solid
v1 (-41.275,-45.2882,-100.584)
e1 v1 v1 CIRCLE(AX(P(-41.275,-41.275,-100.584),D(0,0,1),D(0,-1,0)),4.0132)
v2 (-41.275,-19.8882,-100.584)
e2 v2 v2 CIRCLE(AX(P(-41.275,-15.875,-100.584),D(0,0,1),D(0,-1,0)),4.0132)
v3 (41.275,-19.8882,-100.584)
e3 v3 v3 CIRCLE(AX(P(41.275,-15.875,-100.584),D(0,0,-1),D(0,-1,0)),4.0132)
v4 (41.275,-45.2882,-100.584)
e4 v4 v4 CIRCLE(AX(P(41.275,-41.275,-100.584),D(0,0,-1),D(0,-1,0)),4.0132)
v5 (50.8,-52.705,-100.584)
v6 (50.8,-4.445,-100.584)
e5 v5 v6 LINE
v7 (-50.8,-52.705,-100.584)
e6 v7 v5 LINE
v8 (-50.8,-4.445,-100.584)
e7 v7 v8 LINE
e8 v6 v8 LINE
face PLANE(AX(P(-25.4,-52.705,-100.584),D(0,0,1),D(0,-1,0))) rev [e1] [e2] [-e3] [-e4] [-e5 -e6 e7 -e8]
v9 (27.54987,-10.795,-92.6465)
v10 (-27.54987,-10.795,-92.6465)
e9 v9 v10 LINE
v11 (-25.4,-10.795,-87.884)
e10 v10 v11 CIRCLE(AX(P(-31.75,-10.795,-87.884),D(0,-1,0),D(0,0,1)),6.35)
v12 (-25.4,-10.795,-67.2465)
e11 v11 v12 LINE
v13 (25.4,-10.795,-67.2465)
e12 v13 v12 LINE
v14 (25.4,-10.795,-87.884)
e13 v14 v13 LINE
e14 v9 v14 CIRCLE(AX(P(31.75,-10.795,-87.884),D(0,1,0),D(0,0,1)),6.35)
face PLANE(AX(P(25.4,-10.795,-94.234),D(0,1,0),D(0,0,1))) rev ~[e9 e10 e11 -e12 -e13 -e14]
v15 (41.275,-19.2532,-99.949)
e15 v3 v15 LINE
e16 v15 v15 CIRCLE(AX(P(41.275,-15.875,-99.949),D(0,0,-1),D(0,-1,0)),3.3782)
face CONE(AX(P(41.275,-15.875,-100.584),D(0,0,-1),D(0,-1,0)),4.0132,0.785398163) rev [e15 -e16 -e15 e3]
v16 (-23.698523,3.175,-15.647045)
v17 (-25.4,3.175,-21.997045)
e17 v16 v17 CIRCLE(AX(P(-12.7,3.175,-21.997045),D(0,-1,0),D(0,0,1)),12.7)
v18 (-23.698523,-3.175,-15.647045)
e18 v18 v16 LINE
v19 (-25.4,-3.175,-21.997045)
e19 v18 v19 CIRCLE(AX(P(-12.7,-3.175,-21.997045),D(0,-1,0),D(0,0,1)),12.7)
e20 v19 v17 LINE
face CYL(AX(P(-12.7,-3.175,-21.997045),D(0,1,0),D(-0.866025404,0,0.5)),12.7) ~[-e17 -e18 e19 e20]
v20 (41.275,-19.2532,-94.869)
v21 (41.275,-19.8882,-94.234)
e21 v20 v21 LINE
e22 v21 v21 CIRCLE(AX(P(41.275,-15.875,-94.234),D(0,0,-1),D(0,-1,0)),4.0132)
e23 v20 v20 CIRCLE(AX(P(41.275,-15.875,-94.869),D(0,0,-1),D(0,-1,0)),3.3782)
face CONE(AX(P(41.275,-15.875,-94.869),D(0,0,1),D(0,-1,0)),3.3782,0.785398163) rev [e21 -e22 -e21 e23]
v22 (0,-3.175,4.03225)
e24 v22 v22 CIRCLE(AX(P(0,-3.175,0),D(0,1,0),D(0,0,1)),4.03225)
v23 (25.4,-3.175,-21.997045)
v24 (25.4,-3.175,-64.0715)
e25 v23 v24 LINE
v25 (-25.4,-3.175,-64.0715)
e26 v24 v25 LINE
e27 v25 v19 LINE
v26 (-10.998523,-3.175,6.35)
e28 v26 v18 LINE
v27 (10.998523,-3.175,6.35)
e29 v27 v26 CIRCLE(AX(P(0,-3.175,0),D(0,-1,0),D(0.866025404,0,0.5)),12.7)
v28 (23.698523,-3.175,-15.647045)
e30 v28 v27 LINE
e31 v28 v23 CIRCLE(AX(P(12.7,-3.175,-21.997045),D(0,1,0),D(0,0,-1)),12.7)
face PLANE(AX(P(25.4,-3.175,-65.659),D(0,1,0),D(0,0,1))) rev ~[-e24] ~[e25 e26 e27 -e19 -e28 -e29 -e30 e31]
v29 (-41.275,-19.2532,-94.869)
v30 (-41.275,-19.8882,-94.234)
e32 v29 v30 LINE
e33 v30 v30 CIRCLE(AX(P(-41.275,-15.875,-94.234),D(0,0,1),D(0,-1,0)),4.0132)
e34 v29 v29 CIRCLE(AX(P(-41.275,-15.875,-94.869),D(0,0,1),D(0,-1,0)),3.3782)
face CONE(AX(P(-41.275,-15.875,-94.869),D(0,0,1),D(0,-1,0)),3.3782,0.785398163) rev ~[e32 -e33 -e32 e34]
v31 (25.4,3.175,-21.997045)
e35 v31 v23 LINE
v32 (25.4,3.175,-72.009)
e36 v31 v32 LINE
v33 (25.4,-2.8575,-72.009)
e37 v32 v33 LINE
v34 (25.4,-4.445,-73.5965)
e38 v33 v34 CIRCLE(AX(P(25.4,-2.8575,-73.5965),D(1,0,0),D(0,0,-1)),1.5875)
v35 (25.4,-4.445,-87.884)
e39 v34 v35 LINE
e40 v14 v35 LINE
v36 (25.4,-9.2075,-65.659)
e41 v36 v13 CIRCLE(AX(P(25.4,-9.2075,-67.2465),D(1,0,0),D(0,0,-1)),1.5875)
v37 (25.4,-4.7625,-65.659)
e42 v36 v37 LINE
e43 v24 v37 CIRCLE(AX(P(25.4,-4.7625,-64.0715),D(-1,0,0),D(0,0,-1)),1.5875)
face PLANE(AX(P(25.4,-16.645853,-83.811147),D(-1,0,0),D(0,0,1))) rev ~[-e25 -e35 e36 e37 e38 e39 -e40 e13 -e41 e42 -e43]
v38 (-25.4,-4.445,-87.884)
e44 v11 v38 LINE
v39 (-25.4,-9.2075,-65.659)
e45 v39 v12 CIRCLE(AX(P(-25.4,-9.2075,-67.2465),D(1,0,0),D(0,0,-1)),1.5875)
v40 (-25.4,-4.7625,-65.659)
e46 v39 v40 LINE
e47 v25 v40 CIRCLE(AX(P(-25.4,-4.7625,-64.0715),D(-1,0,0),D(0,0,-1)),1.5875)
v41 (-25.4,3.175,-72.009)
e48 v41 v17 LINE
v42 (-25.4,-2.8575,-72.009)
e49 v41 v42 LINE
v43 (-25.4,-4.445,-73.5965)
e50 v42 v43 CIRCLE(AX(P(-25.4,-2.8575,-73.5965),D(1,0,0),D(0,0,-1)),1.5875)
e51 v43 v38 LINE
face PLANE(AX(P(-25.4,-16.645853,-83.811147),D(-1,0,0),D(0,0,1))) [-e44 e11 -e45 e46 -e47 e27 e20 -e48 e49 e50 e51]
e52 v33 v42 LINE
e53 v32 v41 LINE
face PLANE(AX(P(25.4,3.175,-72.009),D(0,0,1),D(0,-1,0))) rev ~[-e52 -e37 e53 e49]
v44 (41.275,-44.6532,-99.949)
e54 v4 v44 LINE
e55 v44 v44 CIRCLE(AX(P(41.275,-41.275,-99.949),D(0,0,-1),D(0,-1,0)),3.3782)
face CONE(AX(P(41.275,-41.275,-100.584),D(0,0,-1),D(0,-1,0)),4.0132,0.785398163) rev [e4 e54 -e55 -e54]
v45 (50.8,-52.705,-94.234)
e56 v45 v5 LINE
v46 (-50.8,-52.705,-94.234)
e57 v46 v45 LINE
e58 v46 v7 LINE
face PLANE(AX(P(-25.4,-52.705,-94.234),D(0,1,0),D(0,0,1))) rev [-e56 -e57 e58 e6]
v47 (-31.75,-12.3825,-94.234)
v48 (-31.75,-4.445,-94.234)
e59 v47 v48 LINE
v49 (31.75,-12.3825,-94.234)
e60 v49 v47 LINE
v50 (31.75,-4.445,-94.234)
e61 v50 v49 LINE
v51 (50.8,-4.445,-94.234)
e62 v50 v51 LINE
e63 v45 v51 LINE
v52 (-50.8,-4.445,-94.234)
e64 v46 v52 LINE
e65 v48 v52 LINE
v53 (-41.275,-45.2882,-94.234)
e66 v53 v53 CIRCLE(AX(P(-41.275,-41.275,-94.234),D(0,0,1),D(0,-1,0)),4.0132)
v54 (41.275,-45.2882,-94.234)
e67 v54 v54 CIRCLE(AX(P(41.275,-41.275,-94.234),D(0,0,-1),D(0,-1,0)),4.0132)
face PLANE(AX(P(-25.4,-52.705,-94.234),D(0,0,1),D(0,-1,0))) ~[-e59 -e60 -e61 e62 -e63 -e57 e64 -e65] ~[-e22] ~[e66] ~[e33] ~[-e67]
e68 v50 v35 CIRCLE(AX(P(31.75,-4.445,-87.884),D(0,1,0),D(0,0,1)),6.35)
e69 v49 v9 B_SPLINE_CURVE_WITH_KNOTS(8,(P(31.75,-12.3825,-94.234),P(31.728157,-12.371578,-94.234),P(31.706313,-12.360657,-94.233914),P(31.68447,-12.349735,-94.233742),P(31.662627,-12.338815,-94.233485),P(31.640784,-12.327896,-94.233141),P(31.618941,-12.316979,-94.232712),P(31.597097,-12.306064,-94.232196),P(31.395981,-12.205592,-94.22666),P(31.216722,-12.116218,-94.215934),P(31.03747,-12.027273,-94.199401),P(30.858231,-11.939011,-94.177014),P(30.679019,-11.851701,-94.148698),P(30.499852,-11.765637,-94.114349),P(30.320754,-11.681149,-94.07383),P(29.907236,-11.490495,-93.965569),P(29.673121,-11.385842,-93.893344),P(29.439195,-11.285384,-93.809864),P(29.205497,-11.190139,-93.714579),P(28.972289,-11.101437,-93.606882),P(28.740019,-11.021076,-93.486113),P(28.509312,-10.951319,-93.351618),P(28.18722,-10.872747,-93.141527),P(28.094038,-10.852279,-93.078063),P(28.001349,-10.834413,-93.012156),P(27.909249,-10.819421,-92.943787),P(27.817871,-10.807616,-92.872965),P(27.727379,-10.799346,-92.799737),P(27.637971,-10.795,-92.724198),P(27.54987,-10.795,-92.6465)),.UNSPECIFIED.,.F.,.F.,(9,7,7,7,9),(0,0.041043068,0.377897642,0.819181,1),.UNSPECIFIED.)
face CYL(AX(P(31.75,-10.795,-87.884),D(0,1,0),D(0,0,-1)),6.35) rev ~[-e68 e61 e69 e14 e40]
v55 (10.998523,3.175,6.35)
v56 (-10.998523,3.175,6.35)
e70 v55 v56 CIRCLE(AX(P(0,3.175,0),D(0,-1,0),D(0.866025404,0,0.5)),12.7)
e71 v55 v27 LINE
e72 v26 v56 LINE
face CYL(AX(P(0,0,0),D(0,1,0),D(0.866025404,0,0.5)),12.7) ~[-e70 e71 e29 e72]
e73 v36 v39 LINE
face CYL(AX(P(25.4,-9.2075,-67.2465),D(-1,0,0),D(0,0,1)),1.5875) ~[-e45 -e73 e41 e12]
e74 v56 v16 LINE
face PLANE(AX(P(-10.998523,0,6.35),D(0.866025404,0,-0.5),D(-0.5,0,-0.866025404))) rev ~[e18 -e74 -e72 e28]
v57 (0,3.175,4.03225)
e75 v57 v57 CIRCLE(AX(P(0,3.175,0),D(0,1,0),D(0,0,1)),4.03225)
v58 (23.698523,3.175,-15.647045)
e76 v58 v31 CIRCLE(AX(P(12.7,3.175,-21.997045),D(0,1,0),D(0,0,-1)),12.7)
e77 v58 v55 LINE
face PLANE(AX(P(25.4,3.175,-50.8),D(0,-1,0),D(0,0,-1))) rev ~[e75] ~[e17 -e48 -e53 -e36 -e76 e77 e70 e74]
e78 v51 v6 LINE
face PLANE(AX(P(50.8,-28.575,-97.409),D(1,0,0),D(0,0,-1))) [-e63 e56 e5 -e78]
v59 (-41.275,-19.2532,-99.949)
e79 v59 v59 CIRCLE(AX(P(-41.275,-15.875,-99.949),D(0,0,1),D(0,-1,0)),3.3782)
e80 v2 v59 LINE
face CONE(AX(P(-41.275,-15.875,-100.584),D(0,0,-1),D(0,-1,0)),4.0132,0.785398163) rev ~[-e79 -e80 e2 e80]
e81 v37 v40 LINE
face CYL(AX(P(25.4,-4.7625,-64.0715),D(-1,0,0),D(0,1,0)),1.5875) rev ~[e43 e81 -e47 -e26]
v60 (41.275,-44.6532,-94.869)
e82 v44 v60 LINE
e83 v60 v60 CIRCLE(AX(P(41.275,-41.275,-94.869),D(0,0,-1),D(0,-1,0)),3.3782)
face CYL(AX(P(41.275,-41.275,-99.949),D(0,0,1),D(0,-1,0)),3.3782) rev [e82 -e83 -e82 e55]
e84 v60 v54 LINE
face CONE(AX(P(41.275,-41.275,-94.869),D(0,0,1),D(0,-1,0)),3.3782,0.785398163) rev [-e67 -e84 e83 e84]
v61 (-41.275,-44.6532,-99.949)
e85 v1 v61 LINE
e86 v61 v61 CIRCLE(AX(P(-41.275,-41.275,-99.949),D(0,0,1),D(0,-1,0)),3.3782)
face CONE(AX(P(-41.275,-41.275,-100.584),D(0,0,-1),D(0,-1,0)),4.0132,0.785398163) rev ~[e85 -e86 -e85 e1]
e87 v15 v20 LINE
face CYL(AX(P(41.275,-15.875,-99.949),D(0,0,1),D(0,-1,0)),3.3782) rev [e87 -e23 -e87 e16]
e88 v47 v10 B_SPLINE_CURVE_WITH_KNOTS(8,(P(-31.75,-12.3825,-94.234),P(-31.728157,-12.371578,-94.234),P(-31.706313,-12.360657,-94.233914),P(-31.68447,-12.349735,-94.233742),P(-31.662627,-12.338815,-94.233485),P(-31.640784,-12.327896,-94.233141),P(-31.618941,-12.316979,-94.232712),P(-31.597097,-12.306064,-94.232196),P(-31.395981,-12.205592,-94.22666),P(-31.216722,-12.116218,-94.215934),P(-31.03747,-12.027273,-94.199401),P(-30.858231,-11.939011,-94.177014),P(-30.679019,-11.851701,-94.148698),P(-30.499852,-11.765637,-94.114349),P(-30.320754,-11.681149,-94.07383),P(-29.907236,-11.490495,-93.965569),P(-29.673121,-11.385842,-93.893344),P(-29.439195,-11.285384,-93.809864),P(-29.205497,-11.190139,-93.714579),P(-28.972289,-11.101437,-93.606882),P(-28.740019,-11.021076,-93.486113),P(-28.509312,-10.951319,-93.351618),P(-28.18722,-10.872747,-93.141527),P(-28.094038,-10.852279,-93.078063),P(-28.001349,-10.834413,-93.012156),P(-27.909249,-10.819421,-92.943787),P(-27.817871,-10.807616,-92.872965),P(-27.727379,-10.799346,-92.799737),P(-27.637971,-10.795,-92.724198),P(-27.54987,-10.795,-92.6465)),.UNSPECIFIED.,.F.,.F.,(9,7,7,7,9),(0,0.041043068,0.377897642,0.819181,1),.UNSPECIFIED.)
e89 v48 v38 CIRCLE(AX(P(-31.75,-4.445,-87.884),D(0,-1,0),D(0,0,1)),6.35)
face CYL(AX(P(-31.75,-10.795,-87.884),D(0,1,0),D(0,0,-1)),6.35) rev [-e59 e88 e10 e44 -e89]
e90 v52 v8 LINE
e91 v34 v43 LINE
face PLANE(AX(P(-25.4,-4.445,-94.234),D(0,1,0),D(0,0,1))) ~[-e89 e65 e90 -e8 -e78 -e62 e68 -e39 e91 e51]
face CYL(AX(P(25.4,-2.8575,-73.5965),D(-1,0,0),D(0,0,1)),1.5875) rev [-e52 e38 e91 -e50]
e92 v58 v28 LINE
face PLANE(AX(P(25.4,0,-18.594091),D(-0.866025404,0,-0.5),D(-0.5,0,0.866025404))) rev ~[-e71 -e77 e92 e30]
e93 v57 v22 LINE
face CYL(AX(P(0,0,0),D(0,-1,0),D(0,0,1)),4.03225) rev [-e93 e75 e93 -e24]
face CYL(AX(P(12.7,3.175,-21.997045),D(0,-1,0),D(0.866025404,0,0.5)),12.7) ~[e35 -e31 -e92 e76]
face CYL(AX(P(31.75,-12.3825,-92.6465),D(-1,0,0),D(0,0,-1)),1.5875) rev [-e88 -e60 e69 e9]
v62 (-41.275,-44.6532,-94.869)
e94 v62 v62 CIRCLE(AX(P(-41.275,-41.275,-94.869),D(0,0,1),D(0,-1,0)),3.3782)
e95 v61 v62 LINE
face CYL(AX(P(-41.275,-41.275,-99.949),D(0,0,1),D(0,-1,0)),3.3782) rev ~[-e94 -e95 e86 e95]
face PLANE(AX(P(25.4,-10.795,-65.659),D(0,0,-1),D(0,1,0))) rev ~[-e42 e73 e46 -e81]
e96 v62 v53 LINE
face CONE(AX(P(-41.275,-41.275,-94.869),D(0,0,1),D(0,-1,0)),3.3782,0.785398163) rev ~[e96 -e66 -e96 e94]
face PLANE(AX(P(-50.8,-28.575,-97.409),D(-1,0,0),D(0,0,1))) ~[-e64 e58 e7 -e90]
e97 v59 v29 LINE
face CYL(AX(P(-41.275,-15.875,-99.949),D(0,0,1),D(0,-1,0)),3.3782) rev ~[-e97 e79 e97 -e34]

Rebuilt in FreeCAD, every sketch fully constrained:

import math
import FreeCAD as App
import Part
import Sketcher

V = App.Vector
Q = App.Units.Quantity


def edges_at(feature, points):
    """Names of the edges that pass closest to the given points."""
    edges = feature.Shape.Edges
    near = lambda p: min(range(len(edges)), key=lambda i: edges[i].distToShape(Part.Vertex(*p))[0])
    return sorted({f"Edge{near(p) + 1}" for p in points})

doc = App.newDocument("Part")
body = doc.addObject("PartDesign::Body", "Body")

# Sketch on XZ plane
sketch1 = body.newObject("Sketcher::SketchObject", "Sketch")
sketch1.AttachmentSupport = (doc.getObject("XZ_Plane"), [""])
sketch1.MapMode = "FlatFace"
sketch1.addGeometry([
    Part.LineSegment(V(25.4, -50.8, 0), V(-25.4, -50.8, 0)),  # 0
    Part.LineSegment(V(-25.4, -50.8, 0), V(-25.4, -18.6, 0)),  # 1
    Part.LineSegment(V(-25.4, -18.6, 0), V(-11, 6.3, 0)),  # 2
    Part.ArcOfCircle(Part.Circle(V(0, 0, 0), V(0, 0, 1), 12.7), math.radians(30), math.radians(150)),  # 3
    Part.LineSegment(V(11, 6.3, 0), V(25.4, -18.6, 0)),  # 4
    Part.LineSegment(V(25.4, -18.6, 0), V(25.4, -50.8, 0)),  # 5
    Part.Circle(V(0, 0, 0), V(0, 0, 1), 4),  # 6
], False)
sketch1.addConstraint([
    Sketcher.Constraint("Coincident", 0, 2, 1, 1),
    Sketcher.Constraint("Coincident", 1, 2, 2, 1),
    Sketcher.Constraint("Tangent", 2, 2, 3, 2),
    Sketcher.Constraint("Tangent", 3, 1, 4, 1),
    Sketcher.Constraint("Coincident", 4, 2, 5, 1),
    Sketcher.Constraint("Coincident", 5, 2, 0, 1),
    Sketcher.Constraint("Horizontal", 0),
    Sketcher.Constraint("Vertical", 1),
    Sketcher.Constraint("Vertical", 5),
    Sketcher.Constraint("Coincident", 3, 3, -1, 1),
    Sketcher.Constraint("Coincident", 6, 3, -1, 1),
    Sketcher.Constraint("Symmetric", 1, 2, 4, 2, -2),
    Sketcher.Constraint("Radius", 3, Q("0.5 in")),
    Sketcher.Constraint("DistanceX", 0, 2, 0, 1, Q("2 in")),
    Sketcher.Constraint("DistanceY", 0, 2, -1, 1, Q("2 in")),
    Sketcher.Constraint("Angle", 2, Q("60 deg")),
    Sketcher.Constraint("Diameter", 6, Q("0.3175 in")),
])
pad1 = body.newObject("PartDesign::Pad", "Pad")
pad1.Profile = sketch1
pad1.Length = Q("0.25 in")
pad1.Midplane = True
doc.recompute()

fillet = body.newObject("PartDesign::Fillet", "Fillet")
fillet.Base = (pad1, edges_at(pad1, [(25.4, 0, -18.594), (-25.4, 0, -18.594)]))
fillet.Radius = Q("0.5 in")

# Sketch on YZ plane
sketch2 = body.newObject("Sketcher::SketchObject", "Sketch001")
sketch2.AttachmentSupport = (doc.getObject("YZ_Plane"), [""])
sketch2.MapMode = "FlatFace"
sketch2.AttachmentOffset = App.Placement(V(0, 0, 1 * 25.4), App.Rotation())
sketch2.addGeometry([
    Part.LineSegment(V(3, -72, 0), V(3, -51, 0)),  # 0
    Part.LineSegment(V(3, -51, 0), V(-3, -51, 0)),  # 1
    Part.LineSegment(V(-3, -51, 0), V(-3, -66, 0)),  # 2
    Part.LineSegment(V(-3, -66, 0), V(-11, -66, 0)),  # 3
    Part.LineSegment(V(-11, -66, 0), V(-11, -94, 0)),  # 4
    Part.LineSegment(V(-11, -94, 0), V(-53, -94, 0)),  # 5
    Part.LineSegment(V(-53, -94, 0), V(-53, -101, 0)),  # 6
    Part.LineSegment(V(-53, -101, 0), V(-4, -101, 0)),  # 7
    Part.LineSegment(V(-4, -101, 0), V(-4, -72, 0)),  # 8
    Part.LineSegment(V(-4, -72, 0), V(3, -72, 0)),  # 9
], False)
sketch2.addConstraint([
    Sketcher.Constraint("Coincident", 0, 2, 1, 1),
    Sketcher.Constraint("Coincident", 1, 2, 2, 1),
    Sketcher.Constraint("Coincident", 2, 2, 3, 1),
    Sketcher.Constraint("Coincident", 3, 2, 4, 1),
    Sketcher.Constraint("Coincident", 4, 2, 5, 1),
    Sketcher.Constraint("Coincident", 5, 2, 6, 1),
    Sketcher.Constraint("Coincident", 6, 2, 7, 1),
    Sketcher.Constraint("Coincident", 7, 2, 8, 1),
    Sketcher.Constraint("Coincident", 8, 2, 9, 1),
    Sketcher.Constraint("Coincident", 9, 2, 0, 1),
    Sketcher.Constraint("Vertical", 0),
    Sketcher.Constraint("Horizontal", 1),
    Sketcher.Constraint("Vertical", 2),
    Sketcher.Constraint("Horizontal", 3),
    Sketcher.Constraint("Vertical", 4),
    Sketcher.Constraint("Horizontal", 5),
    Sketcher.Constraint("Vertical", 6),
    Sketcher.Constraint("Horizontal", 7),
    Sketcher.Constraint("Vertical", 8),
    Sketcher.Constraint("Horizontal", 9),
    Sketcher.Constraint("Equal", 3, 9),
    Sketcher.Constraint("Equal", 1, 6),
    Sketcher.Constraint("Equal", 4, 8),
    Sketcher.Constraint("DistanceX", 3, 2, 3, 1, Q("0.3 in")),
    Sketcher.Constraint("DistanceX", 7, 1, 7, 2, Q("1.9 in")),
    Sketcher.Constraint("DistanceY", 0, 2, -1, 1, Q("2 in")),
    Sketcher.Constraint("DistanceX", 1, 2, 1, 1, Q("0.25 in")),
    Sketcher.Constraint("DistanceY", 0, 1, 0, 2, Q("0.835 in")),
    Sketcher.Constraint("DistanceY", 4, 2, 4, 1, Q("1.125 in")),
    Sketcher.Constraint("DistanceX", -1, 1, 0, 2, Q("0.125 in")),
])
pad2 = body.newObject("PartDesign::Pad", "Pad001")
pad2.Profile = sketch2
pad2.Length = Q("2 in")
pad2.Reversed = True

# Sketch on YZ plane
sketch3 = body.newObject("Sketcher::SketchObject", "Sketch002")
sketch3.AttachmentSupport = (doc.getObject("YZ_Plane"), [""])
sketch3.MapMode = "FlatFace"
sketch3.AttachmentOffset = App.Placement(V(0, 0, 1 * 25.4), App.Rotation())
sketch3.addGeometry([
    Part.LineSegment(V(-4, -94, 0), V(-53, -94, 0)),
    Part.LineSegment(V(-53, -94, 0), V(-53, -101, 0)),
    Part.LineSegment(V(-53, -101, 0), V(-4, -101, 0)),
    Part.LineSegment(V(-4, -101, 0), V(-4, -94, 0)),
], False)
sketch3.addConstraint([
    Sketcher.Constraint("Coincident", 0, 2, 1, 1),
    Sketcher.Constraint("Coincident", 1, 2, 2, 1),
    Sketcher.Constraint("Coincident", 2, 2, 3, 1),
    Sketcher.Constraint("Coincident", 3, 2, 0, 1),
    Sketcher.Constraint("Horizontal", 0),
    Sketcher.Constraint("Vertical", 1),
    Sketcher.Constraint("Horizontal", 2),
    Sketcher.Constraint("Vertical", 3),
    Sketcher.Constraint("DistanceX", 0, 2, 0, 1, Q("1.9 in")),
    Sketcher.Constraint("DistanceY", 1, 2, 1, 1, Q("0.25 in")),
    Sketcher.Constraint("DistanceY", 0, 2, -1, 1, Q("3.71 in")),
    Sketcher.Constraint("DistanceX", 0, 2, -1, 1, Q("2.075 in")),
])
pad3 = body.newObject("PartDesign::Pad", "Pad002")
pad3.Profile = sketch3
pad3.Length = Q("1 in")

# Sketch on YZ plane
sketch4 = body.newObject("Sketcher::SketchObject", "Sketch003")
sketch4.AttachmentSupport = (doc.getObject("YZ_Plane"), [""])
sketch4.MapMode = "FlatFace"
sketch4.AttachmentOffset = App.Placement(V(0, 0, 1.625 * 25.4), App.Rotation())
sketch4.addGeometry([
    Part.LineSegment(V(-15.9, -100.6, 0), V(-15.9, -94.2, 0)),  # 0
    Part.LineSegment(V(-15.9, -94.2, 0), V(-19.9, -94.2, 0)),  # 1
    Part.LineSegment(V(-19.9, -94.2, 0), V(-19.3, -94.9, 0)),  # 2
    Part.LineSegment(V(-19.3, -94.9, 0), V(-19.3, -99.9, 0)),  # 3
    Part.LineSegment(V(-19.3, -99.9, 0), V(-19.9, -100.6, 0)),  # 4
    Part.LineSegment(V(-19.9, -100.6, 0), V(-15.9, -100.6, 0)),  # 5
], False)
sketch4.addGeometry(Part.LineSegment(V(-15.9, -94.2, 0), V(-15.9, -100.6, 0)), True)  # axis
sketch4.addConstraint([
    Sketcher.Constraint("Coincident", 0, 2, 1, 1),
    Sketcher.Constraint("Coincident", 1, 2, 2, 1),
    Sketcher.Constraint("Coincident", 2, 2, 3, 1),
    Sketcher.Constraint("Coincident", 3, 2, 4, 1),
    Sketcher.Constraint("Coincident", 4, 2, 5, 1),
    Sketcher.Constraint("Coincident", 5, 2, 0, 1),
    Sketcher.Constraint("Vertical", 0),
    Sketcher.Constraint("Horizontal", 1),
    Sketcher.Constraint("Vertical", 3),
    Sketcher.Constraint("Horizontal", 5),
    Sketcher.Constraint("Vertical", 6),
    Sketcher.Constraint("Coincident", 6, 1, 0, 2),
    Sketcher.Constraint("Perpendicular", 2, 4),
    Sketcher.Constraint("Horizontal", 4, 2, 6, 2),
    Sketcher.Constraint("Vertical", 1, 2, 4, 2),
    Sketcher.Constraint("Equal", 2, 4),
    Sketcher.Constraint("DistanceY", 3, 2, 3, 1, Q("0.2 in")),
    Sketcher.Constraint("DistanceY", 0, 1, 0, 2, Q("0.25 in")),
    Sketcher.Constraint("DistanceX", 1, 2, 1, 1, Q("0.158 in")),
    Sketcher.Constraint("DistanceY", 0, 2, -1, 1, Q("3.71 in")),
    Sketcher.Constraint("DistanceX", 0, 2, -1, 1, Q("0.625 in")),
])
groove = body.newObject("PartDesign::Groove", "Groove")
groove.Profile = sketch4
groove.ReferenceAxis = (sketch4, ["Axis0"])
groove.Angle = 360
doc.recompute()

linearpattern = body.newObject("PartDesign::LinearPattern", "LinearPattern")
linearpattern.Originals = [groove]
linearpattern.Direction = (doc.getObject("Y_Axis"), [""])
linearpattern.Mode = "offset"
linearpattern.Offset = Q("1 in")
linearpattern.Occurrences = 2
linearpattern.Reversed = True
body.Tip = linearpattern
doc.recompute()

mirrored = body.newObject("PartDesign::Mirrored", "Mirrored")
mirrored.Originals = [pad3, groove]
mirrored.MirrorPlane = (doc.getObject("YZ_Plane"), [""])
body.Tip = mirrored

# Sketch on YZ plane
sketch5 = body.newObject("Sketcher::SketchObject", "Sketch004")
sketch5.AttachmentSupport = (doc.getObject("YZ_Plane"), [""])
sketch5.MapMode = "FlatFace"
sketch5.AttachmentOffset = App.Placement(V(0, 0, -1.625 * 25.4), App.Rotation())
sketch5.addGeometry([
    Part.LineSegment(V(-41.3, -94.2, 0), V(-41.3, -100.6, 0)),  # 0
    Part.LineSegment(V(-41.3, -100.6, 0), V(-45.3, -100.6, 0)),  # 1
    Part.LineSegment(V(-45.3, -100.6, 0), V(-44.7, -99.9, 0)),  # 2
    Part.LineSegment(V(-44.7, -99.9, 0), V(-44.7, -94.9, 0)),  # 3
    Part.LineSegment(V(-44.7, -94.9, 0), V(-45.3, -94.2, 0)),  # 4
    Part.LineSegment(V(-45.3, -94.2, 0), V(-41.3, -94.2, 0)),  # 5
], False)
sketch5.addGeometry(Part.LineSegment(V(-41.3, -100.6, 0), V(-41.3, -94.2, 0)), True)  # axis
sketch5.addConstraint([
    Sketcher.Constraint("Coincident", 0, 2, 1, 1),
    Sketcher.Constraint("Coincident", 1, 2, 2, 1),
    Sketcher.Constraint("Coincident", 2, 2, 3, 1),
    Sketcher.Constraint("Coincident", 3, 2, 4, 1),
    Sketcher.Constraint("Coincident", 4, 2, 5, 1),
    Sketcher.Constraint("Coincident", 5, 2, 0, 1),
    Sketcher.Constraint("Vertical", 0),
    Sketcher.Constraint("Horizontal", 1),
    Sketcher.Constraint("Vertical", 3),
    Sketcher.Constraint("Horizontal", 5),
    Sketcher.Constraint("Vertical", 6),
    Sketcher.Constraint("Coincident", 6, 1, 0, 2),
    Sketcher.Constraint("Perpendicular", 2, 4),
    Sketcher.Constraint("Horizontal", 4, 2, 6, 2),
    Sketcher.Constraint("Vertical", 1, 2, 4, 2),
    Sketcher.Constraint("Equal", 2, 4),
    Sketcher.Constraint("DistanceY", 3, 1, 3, 2, Q("0.2 in")),
    Sketcher.Constraint("DistanceY", 0, 2, 0, 1, Q("0.25 in")),
    Sketcher.Constraint("DistanceX", 1, 2, 1, 1, Q("0.158 in")),
    Sketcher.Constraint("DistanceY", 0, 2, -1, 1, Q("3.96 in")),
    Sketcher.Constraint("DistanceX", 0, 2, -1, 1, Q("1.625 in")),
])
groove2 = body.newObject("PartDesign::Groove", "Groove001")
groove2.Profile = sketch5
groove2.ReferenceAxis = (sketch5, ["Axis0"])
groove2.Angle = 360
doc.recompute()

fillet2 = body.newObject("PartDesign::Fillet", "Fillet001")
fillet2.Base = (groove2, edges_at(groove2, [(25.4, -7.62, -94.234), (-25.4, -7.62, -94.234)]))
fillet2.Radius = Q("0.25 in")
doc.recompute()

fillet3 = body.newObject("PartDesign::Fillet", "Fillet002")
fillet3.Base = (fillet2, edges_at(fillet2, [
    (0, -4.445, -72.009),
    (0, -3.175, -65.659),
    (0, -10.795, -65.659),
    (0, -10.795, -94.234),
]))
fillet3.Radius = Q("0.0625 in")

doc.recompute()
